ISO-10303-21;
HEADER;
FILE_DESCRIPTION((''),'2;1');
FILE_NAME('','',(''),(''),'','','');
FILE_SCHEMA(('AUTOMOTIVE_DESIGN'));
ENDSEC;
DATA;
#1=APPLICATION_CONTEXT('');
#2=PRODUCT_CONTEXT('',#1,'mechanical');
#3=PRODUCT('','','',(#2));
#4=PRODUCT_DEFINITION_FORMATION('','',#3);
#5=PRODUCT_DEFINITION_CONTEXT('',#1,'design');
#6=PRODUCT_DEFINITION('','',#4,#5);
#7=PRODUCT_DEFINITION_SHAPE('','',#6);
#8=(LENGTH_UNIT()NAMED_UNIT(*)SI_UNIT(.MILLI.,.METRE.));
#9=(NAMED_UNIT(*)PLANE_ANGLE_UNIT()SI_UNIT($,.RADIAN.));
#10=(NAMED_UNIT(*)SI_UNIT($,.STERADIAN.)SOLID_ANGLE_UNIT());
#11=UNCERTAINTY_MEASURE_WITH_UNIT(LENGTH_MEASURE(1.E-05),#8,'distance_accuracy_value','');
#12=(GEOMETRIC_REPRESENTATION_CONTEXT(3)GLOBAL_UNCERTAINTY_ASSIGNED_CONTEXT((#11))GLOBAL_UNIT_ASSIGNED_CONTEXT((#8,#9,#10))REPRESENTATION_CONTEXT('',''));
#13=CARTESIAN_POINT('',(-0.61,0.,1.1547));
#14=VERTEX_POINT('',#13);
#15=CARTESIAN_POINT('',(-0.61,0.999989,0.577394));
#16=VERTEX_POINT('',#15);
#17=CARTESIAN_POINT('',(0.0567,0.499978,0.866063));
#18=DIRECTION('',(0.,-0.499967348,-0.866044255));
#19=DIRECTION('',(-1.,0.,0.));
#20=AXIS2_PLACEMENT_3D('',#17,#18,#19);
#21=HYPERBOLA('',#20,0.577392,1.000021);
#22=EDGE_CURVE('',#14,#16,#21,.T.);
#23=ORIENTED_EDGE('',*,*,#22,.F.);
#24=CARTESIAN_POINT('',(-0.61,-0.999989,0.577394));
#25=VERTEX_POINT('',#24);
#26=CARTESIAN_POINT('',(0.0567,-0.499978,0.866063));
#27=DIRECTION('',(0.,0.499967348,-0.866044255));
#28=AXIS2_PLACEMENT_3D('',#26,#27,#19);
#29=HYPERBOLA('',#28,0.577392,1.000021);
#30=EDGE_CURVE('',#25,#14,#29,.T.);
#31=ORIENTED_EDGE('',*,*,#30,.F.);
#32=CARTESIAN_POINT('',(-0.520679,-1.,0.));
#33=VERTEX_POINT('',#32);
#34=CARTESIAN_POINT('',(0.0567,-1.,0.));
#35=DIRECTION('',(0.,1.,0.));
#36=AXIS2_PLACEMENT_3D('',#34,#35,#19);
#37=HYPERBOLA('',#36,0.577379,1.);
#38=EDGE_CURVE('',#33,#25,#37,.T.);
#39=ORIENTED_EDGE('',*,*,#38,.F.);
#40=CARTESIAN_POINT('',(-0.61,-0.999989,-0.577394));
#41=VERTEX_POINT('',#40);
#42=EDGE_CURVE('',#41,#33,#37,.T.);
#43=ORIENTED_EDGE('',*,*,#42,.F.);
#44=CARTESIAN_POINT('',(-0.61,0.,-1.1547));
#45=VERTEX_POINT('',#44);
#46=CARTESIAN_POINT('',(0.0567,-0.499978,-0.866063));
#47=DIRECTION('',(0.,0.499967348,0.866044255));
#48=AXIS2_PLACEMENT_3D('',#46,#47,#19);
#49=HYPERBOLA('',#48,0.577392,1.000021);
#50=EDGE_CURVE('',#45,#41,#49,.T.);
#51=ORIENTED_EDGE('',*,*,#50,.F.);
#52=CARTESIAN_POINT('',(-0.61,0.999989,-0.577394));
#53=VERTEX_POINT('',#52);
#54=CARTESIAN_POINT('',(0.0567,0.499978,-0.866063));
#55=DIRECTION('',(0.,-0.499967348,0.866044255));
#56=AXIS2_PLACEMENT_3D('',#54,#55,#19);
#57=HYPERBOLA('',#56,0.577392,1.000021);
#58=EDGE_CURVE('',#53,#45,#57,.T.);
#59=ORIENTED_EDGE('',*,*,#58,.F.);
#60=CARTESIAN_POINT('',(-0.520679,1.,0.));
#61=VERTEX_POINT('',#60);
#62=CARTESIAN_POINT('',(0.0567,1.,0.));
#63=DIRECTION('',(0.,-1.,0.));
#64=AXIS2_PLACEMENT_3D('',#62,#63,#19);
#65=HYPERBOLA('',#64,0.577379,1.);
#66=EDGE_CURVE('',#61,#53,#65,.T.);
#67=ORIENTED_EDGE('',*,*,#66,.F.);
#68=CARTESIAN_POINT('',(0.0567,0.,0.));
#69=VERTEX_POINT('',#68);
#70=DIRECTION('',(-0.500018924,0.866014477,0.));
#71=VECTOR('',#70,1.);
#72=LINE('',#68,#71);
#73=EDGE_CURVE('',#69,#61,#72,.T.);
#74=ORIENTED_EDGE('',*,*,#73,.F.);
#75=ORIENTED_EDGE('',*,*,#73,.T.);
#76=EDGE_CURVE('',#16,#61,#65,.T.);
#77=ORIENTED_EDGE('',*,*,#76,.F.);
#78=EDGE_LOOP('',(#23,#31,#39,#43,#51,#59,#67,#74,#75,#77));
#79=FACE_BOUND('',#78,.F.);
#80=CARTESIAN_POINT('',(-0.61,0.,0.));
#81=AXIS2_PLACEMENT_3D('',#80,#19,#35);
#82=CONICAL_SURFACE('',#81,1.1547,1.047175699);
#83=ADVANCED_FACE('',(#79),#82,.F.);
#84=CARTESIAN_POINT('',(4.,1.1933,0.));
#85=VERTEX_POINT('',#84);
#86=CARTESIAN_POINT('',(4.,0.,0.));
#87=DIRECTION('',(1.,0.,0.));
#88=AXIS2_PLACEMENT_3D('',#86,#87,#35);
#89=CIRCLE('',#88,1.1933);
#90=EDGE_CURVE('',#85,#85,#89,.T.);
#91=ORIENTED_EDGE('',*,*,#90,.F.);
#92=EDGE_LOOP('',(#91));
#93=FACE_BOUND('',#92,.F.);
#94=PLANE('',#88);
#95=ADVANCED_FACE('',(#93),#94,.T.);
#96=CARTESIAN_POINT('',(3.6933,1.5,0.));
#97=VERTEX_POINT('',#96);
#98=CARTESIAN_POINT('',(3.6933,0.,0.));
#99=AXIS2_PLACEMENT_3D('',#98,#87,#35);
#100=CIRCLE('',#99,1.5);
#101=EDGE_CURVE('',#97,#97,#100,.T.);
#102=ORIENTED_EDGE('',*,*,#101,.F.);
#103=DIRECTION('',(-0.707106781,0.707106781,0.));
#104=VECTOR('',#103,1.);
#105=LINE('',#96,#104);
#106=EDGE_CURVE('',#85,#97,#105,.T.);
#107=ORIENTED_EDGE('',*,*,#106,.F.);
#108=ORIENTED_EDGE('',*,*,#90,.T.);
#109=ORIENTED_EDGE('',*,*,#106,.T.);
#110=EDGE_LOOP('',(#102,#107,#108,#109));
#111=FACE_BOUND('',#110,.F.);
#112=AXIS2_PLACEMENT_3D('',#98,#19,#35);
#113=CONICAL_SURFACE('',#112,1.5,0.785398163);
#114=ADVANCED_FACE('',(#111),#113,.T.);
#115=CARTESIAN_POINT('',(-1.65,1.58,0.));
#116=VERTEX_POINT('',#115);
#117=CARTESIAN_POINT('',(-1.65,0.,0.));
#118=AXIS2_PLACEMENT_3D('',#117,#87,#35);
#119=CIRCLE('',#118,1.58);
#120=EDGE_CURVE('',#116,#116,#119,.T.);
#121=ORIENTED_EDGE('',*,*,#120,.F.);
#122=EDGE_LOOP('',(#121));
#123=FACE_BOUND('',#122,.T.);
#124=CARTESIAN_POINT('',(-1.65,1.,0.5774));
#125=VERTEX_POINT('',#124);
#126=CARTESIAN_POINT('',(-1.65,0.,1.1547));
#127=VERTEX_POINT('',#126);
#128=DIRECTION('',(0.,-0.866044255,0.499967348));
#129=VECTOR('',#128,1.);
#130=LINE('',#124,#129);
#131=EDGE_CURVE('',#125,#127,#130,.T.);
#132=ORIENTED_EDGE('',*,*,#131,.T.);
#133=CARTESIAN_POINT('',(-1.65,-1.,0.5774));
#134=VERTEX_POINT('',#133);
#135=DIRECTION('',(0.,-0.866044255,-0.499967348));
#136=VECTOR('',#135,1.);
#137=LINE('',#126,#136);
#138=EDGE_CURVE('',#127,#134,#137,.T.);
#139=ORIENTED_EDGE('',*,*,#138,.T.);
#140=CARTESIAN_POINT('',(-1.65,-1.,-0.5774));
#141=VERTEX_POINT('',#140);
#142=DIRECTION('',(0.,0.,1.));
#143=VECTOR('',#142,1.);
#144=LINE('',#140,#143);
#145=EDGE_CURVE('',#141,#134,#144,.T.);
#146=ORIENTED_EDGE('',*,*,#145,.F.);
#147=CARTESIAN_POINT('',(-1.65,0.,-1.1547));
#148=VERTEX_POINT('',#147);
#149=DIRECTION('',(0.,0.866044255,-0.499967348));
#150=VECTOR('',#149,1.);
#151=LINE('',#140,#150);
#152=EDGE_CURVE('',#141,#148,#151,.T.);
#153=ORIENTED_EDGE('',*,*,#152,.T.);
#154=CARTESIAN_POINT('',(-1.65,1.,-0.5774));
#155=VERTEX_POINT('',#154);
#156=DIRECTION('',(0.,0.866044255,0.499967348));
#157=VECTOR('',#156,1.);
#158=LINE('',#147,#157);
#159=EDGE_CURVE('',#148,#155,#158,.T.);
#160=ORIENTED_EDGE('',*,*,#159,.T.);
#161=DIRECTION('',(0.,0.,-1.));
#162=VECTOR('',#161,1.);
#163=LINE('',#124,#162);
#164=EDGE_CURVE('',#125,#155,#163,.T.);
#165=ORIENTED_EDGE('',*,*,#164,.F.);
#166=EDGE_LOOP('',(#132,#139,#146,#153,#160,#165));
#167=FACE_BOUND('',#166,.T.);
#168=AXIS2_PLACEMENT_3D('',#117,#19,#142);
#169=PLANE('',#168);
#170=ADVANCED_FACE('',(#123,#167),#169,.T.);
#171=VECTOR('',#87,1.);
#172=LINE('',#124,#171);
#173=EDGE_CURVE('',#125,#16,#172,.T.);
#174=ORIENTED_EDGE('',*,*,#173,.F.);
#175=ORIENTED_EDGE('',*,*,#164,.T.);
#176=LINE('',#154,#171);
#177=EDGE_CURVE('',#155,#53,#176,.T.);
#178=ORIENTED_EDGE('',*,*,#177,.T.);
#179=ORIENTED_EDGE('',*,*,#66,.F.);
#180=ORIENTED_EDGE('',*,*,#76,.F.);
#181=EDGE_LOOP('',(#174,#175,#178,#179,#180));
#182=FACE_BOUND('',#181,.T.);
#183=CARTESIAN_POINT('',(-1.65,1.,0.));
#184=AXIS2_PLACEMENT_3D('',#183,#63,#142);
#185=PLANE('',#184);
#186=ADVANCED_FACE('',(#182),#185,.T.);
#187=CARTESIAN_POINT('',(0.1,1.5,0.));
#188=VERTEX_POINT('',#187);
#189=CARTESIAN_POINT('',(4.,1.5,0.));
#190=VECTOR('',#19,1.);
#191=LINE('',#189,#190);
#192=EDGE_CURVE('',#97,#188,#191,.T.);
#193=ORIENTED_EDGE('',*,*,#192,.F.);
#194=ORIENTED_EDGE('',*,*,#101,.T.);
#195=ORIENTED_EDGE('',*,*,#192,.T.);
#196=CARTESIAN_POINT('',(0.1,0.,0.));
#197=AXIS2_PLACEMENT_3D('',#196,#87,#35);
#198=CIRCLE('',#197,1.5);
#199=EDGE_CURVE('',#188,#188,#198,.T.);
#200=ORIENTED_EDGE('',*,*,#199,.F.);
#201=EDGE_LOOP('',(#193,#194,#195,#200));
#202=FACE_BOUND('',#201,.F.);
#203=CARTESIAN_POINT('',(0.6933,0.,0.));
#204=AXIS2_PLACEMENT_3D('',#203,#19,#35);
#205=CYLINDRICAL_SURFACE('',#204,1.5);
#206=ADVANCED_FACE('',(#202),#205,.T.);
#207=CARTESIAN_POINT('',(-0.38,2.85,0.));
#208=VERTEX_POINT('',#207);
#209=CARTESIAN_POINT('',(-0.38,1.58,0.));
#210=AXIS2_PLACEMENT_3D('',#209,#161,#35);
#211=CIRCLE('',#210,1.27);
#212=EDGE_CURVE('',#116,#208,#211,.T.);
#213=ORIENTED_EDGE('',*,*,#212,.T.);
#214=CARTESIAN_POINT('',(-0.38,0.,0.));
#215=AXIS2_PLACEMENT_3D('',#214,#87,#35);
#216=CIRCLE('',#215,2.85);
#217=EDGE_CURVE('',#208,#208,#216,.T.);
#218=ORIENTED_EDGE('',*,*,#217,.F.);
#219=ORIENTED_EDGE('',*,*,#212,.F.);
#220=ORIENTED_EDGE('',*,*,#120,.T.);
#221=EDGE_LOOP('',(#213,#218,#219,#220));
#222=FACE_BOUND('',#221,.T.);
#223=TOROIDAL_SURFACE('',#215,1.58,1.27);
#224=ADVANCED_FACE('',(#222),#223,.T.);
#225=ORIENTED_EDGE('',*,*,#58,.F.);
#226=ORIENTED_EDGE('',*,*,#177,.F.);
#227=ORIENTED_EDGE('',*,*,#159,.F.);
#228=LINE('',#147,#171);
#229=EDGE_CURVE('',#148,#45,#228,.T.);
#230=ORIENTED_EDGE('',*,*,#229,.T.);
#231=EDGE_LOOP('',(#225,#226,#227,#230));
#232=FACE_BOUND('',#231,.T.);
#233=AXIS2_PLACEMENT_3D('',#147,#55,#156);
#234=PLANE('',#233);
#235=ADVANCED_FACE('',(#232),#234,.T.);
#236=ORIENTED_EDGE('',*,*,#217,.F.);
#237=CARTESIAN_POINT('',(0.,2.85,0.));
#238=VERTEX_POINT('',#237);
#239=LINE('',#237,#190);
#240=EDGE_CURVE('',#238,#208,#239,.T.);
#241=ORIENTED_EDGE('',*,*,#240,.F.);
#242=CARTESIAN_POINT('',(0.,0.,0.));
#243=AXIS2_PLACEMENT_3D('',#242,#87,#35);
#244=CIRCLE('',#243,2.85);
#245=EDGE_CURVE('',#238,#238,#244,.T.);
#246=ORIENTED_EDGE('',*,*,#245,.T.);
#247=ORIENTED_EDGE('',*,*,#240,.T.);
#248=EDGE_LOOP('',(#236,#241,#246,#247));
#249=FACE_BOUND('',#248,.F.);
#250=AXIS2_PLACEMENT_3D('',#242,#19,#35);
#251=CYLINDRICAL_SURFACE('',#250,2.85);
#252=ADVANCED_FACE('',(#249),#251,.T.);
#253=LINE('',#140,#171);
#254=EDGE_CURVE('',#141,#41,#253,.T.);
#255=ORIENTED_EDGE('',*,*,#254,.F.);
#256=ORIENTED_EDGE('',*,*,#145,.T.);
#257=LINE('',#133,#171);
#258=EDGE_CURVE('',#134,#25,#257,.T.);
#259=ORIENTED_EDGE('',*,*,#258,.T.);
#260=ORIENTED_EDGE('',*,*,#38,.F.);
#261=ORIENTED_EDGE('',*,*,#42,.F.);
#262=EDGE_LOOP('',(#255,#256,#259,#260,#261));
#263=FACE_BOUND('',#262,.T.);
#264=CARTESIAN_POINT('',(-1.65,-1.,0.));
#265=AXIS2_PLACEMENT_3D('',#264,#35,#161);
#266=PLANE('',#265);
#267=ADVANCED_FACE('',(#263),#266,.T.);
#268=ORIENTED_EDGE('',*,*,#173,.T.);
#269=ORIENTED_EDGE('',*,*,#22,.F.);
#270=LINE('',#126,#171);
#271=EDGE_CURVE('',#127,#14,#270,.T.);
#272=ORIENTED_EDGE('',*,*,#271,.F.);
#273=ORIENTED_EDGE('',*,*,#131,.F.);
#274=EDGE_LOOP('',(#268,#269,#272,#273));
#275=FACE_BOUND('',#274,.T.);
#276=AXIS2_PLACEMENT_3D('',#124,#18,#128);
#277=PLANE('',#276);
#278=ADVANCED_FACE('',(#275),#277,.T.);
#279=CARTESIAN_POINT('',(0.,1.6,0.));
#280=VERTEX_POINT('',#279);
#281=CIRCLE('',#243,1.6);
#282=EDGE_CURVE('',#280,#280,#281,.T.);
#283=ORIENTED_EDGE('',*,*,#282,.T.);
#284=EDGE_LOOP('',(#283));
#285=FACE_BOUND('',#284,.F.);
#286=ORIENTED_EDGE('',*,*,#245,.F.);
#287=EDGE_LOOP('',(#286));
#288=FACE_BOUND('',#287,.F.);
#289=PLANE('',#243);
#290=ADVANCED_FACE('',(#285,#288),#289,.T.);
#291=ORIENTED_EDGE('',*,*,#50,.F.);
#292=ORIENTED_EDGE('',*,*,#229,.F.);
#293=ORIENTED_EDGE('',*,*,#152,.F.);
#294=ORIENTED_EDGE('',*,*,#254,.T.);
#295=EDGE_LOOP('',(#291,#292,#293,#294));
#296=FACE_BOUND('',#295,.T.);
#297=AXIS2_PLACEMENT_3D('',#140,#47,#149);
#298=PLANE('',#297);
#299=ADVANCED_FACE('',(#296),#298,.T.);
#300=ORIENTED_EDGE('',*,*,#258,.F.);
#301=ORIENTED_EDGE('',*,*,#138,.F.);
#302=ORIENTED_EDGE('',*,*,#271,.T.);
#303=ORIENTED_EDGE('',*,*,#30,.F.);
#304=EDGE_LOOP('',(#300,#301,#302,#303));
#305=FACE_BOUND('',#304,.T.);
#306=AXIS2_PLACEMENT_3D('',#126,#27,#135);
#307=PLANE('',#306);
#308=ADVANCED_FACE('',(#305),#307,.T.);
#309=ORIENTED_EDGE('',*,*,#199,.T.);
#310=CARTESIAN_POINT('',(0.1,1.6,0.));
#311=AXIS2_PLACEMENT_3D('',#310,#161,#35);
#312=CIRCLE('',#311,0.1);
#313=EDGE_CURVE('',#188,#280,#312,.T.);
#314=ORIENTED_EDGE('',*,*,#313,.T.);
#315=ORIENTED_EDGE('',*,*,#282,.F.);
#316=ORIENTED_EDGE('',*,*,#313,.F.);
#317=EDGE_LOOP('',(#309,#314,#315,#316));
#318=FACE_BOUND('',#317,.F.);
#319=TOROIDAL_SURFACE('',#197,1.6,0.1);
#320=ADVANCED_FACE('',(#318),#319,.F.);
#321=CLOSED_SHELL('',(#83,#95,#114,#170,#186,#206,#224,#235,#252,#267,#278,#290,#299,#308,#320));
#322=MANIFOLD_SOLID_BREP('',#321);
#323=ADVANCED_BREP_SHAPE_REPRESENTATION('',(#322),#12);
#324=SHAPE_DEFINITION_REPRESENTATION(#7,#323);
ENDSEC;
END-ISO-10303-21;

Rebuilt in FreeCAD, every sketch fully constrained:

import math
import FreeCAD as App
import Part
import Sketcher
from FreeCAD import Vector
Q = App.Units.Quantity


def edges_at(feature, points):
    """Names of the edges that pass closest to the given points."""
    edges = feature.Shape.Edges
    near = lambda p: min(range(len(edges)), key=lambda i: edges[i].distToShape(Part.Vertex(*p))[0])
    return sorted({f"Edge{near(p) + 1}" for p in points})


def add_polygon(sketch, points):
    """Adds a closed chain of lines whose ends are joined by coincident constraints."""
    first, n = sketch.GeometryCount, len(points)
    for a, b in zip(points, points[1:] + points[:1]):
        sketch.addGeometry(Part.LineSegment(App.Vector(*a, 0), App.Vector(*b, 0)), False)
    for i in range(n):
        sketch.addConstraint(Sketcher.Constraint("Coincident", first + i, 2, first + (i + 1) % n, 1))

doc = App.newDocument("Part")
body = doc.addObject("PartDesign::Body", "Body")

# Sketch on XY plane
sketch1 = body.newObject("Sketcher::SketchObject", "Sketch")
sketch1.AttachmentSupport = (doc.getObject("XY_Plane"), [""])
sketch1.MapMode = "FlatFace"
add_polygon(sketch1, [(0.1, 0), (4, 0), (4, 1.5), (0, 1.5), (0, 2.9), (-1.6, 2.9), (-1.6, 1.2), (-0.6, 1.2)])  # lines 0-7
sketch1.addConstraint([
    Sketcher.Constraint("Horizontal", 0),
    Sketcher.Constraint("Vertical", 1),
    Sketcher.Constraint("Horizontal", 2),
    Sketcher.Constraint("Vertical", 3),
    Sketcher.Constraint("Horizontal", 4),
    Sketcher.Constraint("Vertical", 5),
    Sketcher.Constraint("Horizontal", 6),
    Sketcher.Constraint("PointOnObject", 0, 2, -1),
    Sketcher.Constraint("PointOnObject", 2, 2, -2),
    Sketcher.Constraint("DistanceX", 2, 2, 2, 1, Q("4 mm")),
    Sketcher.Constraint("DistanceX", 4, 2, 4, 1, Q("1.65 mm")),
    Sketcher.Constraint("DistanceX", 6, 1, 6, 2, Q("1.04 mm")),
    Sketcher.Constraint("DistanceY", 1, 1, 1, 2, Q("1.5 mm")),
    Sketcher.Constraint("DistanceY", 3, 1, 3, 2, Q("1.35 mm")),
    Sketcher.Constraint("DistanceX", 0, 1, 0, 2, Q("3.9433 mm")),
    Sketcher.Constraint("DistanceY", 5, 2, 5, 1, Q("1.6953 mm")),
])
revolution = body.newObject("PartDesign::Revolution", "Revolution")
revolution.Profile = sketch1
revolution.ReferenceAxis = (sketch1, ["H_Axis"])
revolution.Angle = 360

# Sketch on YZ plane
sketch2 = body.newObject("Sketcher::SketchObject", "Sketch001")
sketch2.AttachmentSupport = (doc.getObject("YZ_Plane"), [""])
sketch2.MapMode = "FlatFace"
sketch2.AttachmentOffset = App.Placement(Vector(0, 0, -1.65), App.Rotation())
sketch2.addGeometry([
    Part.LineSegment(Vector(1, 0.6, 0), Vector(0, 1.2, 0)),  # 0
    Part.ArcOfCircle(Part.Circle(Vector(0, 0, 0), Vector(0, 0, 1), 1.2), math.radians(30), math.radians(90)),  # 1
    Part.ArcOfCircle(Part.Circle(Vector(0, 0, 0), Vector(0, 0, 1), 1.2), math.radians(90), math.radians(150)),  # 2
    Part.LineSegment(Vector(0, 1.2, 0), Vector(-1, 0.6, 0)),  # 3
    Part.ArcOfCircle(Part.Circle(Vector(0, 0, 0), Vector(0, 0, 1), 1.2), math.radians(-30), math.radians(30)),  # 4
    Part.LineSegment(Vector(1, 0.6, 0), Vector(1, -0.6, 0)),  # 5
    Part.LineSegment(Vector(-1, 0.6, 0), Vector(-1, -0.6, 0)),  # 6
    Part.ArcOfCircle(Part.Circle(Vector(0, 0, 0), Vector(0, 0, 1), 1.2), math.radians(150), math.radians(210)),  # 7
    Part.LineSegment(Vector(-1, -0.6, 0), Vector(0, -1.2, 0)),  # 8
    Part.ArcOfCircle(Part.Circle(Vector(0, 0, 0), Vector(0, 0, 1), 1.2), math.radians(-150), math.radians(-90)),  # 9
    Part.ArcOfCircle(Part.Circle(Vector(0, 0, 0), Vector(0, 0, 1), 1.2), math.radians(-90), math.radians(-30)),  # 10
    Part.LineSegment(Vector(0, -1.2, 0), Vector(1, -0.6, 0)),  # 11
], False)
sketch2.addConstraint([
    Sketcher.Constraint("Coincident", 0, 1, 1, 1),
    Sketcher.Constraint("Coincident", 1, 2, 0, 2),
    Sketcher.Constraint("Coincident", 2, 1, 3, 1),
    Sketcher.Constraint("Coincident", 3, 2, 2, 2),
    Sketcher.Constraint("Coincident", 4, 1, 5, 2),
    Sketcher.Constraint("Coincident", 5, 1, 4, 2),
    Sketcher.Constraint("Coincident", 6, 1, 7, 1),
    Sketcher.Constraint("Coincident", 7, 2, 6, 2),
    Sketcher.Constraint("Coincident", 8, 1, 9, 1),
    Sketcher.Constraint("Coincident", 9, 2, 8, 2),
    Sketcher.Constraint("Coincident", 10, 1, 11, 1),
    Sketcher.Constraint("Coincident", 11, 2, 10, 2),
    Sketcher.Constraint("Vertical", 5),
    Sketcher.Constraint("Vertical", 6),
    Sketcher.Constraint("Coincident", 1, 3, -1, 1),
    Sketcher.Constraint("Coincident", 2, 3, -1, 1),
    Sketcher.Constraint("Coincident", 4, 3, -1, 1),
    Sketcher.Constraint("Coincident", 7, 3, -1, 1),
    Sketcher.Constraint("Coincident", 9, 3, -1, 1),
    Sketcher.Constraint("Coincident", 10, 3, -1, 1),
    Sketcher.Constraint("Coincident", 2, 1, 1, 2),
    Sketcher.Constraint("Coincident", 5, 1, 0, 1),
    Sketcher.Constraint("Coincident", 6, 1, 3, 2),
    Sketcher.Constraint("Coincident", 8, 1, 7, 2),
    Sketcher.Constraint("Coincident", 10, 1, 9, 2),
    Sketcher.Constraint("PointOnObject", 1, 2, -2),
    Sketcher.Constraint("PointOnObject", 9, 2, -2),
    Sketcher.Constraint("Parallel", 0, 8),
    Sketcher.Constraint("Parallel", 3, 11),
    Sketcher.Constraint("DistanceX", -1, 1, 0, 1, Q("1 mm")),
    Sketcher.Constraint("Radius", 1, Q("1.1547 mm")),
])
pad1 = body.newObject("PartDesign::Pad", "Pad")
pad1.Profile = sketch2
pad1.Type = "UpToFirst"
doc.recompute()

fillet = body.newObject("PartDesign::Fillet", "Fillet")
fillet.Base = (pad1, edges_at(pad1, [(-1.65, -2.85, 0)]))
fillet.Radius = 1.27
doc.recompute()

chamfer = body.newObject("PartDesign::Chamfer", "Chamfer")
chamfer.Base = (fillet, edges_at(fillet, [(4, -1.5, 0)]))
chamfer.ChamferType = "Two distances"
chamfer.Size = 0.3067
chamfer.Size2 = 0.3067
doc.recompute()

fillet2 = body.newObject("PartDesign::Fillet", "Fillet001")
fillet2.Base = (chamfer, edges_at(chamfer, [(0, -1.5, 0)]))
fillet2.Radius = 0.1

doc.recompute()
